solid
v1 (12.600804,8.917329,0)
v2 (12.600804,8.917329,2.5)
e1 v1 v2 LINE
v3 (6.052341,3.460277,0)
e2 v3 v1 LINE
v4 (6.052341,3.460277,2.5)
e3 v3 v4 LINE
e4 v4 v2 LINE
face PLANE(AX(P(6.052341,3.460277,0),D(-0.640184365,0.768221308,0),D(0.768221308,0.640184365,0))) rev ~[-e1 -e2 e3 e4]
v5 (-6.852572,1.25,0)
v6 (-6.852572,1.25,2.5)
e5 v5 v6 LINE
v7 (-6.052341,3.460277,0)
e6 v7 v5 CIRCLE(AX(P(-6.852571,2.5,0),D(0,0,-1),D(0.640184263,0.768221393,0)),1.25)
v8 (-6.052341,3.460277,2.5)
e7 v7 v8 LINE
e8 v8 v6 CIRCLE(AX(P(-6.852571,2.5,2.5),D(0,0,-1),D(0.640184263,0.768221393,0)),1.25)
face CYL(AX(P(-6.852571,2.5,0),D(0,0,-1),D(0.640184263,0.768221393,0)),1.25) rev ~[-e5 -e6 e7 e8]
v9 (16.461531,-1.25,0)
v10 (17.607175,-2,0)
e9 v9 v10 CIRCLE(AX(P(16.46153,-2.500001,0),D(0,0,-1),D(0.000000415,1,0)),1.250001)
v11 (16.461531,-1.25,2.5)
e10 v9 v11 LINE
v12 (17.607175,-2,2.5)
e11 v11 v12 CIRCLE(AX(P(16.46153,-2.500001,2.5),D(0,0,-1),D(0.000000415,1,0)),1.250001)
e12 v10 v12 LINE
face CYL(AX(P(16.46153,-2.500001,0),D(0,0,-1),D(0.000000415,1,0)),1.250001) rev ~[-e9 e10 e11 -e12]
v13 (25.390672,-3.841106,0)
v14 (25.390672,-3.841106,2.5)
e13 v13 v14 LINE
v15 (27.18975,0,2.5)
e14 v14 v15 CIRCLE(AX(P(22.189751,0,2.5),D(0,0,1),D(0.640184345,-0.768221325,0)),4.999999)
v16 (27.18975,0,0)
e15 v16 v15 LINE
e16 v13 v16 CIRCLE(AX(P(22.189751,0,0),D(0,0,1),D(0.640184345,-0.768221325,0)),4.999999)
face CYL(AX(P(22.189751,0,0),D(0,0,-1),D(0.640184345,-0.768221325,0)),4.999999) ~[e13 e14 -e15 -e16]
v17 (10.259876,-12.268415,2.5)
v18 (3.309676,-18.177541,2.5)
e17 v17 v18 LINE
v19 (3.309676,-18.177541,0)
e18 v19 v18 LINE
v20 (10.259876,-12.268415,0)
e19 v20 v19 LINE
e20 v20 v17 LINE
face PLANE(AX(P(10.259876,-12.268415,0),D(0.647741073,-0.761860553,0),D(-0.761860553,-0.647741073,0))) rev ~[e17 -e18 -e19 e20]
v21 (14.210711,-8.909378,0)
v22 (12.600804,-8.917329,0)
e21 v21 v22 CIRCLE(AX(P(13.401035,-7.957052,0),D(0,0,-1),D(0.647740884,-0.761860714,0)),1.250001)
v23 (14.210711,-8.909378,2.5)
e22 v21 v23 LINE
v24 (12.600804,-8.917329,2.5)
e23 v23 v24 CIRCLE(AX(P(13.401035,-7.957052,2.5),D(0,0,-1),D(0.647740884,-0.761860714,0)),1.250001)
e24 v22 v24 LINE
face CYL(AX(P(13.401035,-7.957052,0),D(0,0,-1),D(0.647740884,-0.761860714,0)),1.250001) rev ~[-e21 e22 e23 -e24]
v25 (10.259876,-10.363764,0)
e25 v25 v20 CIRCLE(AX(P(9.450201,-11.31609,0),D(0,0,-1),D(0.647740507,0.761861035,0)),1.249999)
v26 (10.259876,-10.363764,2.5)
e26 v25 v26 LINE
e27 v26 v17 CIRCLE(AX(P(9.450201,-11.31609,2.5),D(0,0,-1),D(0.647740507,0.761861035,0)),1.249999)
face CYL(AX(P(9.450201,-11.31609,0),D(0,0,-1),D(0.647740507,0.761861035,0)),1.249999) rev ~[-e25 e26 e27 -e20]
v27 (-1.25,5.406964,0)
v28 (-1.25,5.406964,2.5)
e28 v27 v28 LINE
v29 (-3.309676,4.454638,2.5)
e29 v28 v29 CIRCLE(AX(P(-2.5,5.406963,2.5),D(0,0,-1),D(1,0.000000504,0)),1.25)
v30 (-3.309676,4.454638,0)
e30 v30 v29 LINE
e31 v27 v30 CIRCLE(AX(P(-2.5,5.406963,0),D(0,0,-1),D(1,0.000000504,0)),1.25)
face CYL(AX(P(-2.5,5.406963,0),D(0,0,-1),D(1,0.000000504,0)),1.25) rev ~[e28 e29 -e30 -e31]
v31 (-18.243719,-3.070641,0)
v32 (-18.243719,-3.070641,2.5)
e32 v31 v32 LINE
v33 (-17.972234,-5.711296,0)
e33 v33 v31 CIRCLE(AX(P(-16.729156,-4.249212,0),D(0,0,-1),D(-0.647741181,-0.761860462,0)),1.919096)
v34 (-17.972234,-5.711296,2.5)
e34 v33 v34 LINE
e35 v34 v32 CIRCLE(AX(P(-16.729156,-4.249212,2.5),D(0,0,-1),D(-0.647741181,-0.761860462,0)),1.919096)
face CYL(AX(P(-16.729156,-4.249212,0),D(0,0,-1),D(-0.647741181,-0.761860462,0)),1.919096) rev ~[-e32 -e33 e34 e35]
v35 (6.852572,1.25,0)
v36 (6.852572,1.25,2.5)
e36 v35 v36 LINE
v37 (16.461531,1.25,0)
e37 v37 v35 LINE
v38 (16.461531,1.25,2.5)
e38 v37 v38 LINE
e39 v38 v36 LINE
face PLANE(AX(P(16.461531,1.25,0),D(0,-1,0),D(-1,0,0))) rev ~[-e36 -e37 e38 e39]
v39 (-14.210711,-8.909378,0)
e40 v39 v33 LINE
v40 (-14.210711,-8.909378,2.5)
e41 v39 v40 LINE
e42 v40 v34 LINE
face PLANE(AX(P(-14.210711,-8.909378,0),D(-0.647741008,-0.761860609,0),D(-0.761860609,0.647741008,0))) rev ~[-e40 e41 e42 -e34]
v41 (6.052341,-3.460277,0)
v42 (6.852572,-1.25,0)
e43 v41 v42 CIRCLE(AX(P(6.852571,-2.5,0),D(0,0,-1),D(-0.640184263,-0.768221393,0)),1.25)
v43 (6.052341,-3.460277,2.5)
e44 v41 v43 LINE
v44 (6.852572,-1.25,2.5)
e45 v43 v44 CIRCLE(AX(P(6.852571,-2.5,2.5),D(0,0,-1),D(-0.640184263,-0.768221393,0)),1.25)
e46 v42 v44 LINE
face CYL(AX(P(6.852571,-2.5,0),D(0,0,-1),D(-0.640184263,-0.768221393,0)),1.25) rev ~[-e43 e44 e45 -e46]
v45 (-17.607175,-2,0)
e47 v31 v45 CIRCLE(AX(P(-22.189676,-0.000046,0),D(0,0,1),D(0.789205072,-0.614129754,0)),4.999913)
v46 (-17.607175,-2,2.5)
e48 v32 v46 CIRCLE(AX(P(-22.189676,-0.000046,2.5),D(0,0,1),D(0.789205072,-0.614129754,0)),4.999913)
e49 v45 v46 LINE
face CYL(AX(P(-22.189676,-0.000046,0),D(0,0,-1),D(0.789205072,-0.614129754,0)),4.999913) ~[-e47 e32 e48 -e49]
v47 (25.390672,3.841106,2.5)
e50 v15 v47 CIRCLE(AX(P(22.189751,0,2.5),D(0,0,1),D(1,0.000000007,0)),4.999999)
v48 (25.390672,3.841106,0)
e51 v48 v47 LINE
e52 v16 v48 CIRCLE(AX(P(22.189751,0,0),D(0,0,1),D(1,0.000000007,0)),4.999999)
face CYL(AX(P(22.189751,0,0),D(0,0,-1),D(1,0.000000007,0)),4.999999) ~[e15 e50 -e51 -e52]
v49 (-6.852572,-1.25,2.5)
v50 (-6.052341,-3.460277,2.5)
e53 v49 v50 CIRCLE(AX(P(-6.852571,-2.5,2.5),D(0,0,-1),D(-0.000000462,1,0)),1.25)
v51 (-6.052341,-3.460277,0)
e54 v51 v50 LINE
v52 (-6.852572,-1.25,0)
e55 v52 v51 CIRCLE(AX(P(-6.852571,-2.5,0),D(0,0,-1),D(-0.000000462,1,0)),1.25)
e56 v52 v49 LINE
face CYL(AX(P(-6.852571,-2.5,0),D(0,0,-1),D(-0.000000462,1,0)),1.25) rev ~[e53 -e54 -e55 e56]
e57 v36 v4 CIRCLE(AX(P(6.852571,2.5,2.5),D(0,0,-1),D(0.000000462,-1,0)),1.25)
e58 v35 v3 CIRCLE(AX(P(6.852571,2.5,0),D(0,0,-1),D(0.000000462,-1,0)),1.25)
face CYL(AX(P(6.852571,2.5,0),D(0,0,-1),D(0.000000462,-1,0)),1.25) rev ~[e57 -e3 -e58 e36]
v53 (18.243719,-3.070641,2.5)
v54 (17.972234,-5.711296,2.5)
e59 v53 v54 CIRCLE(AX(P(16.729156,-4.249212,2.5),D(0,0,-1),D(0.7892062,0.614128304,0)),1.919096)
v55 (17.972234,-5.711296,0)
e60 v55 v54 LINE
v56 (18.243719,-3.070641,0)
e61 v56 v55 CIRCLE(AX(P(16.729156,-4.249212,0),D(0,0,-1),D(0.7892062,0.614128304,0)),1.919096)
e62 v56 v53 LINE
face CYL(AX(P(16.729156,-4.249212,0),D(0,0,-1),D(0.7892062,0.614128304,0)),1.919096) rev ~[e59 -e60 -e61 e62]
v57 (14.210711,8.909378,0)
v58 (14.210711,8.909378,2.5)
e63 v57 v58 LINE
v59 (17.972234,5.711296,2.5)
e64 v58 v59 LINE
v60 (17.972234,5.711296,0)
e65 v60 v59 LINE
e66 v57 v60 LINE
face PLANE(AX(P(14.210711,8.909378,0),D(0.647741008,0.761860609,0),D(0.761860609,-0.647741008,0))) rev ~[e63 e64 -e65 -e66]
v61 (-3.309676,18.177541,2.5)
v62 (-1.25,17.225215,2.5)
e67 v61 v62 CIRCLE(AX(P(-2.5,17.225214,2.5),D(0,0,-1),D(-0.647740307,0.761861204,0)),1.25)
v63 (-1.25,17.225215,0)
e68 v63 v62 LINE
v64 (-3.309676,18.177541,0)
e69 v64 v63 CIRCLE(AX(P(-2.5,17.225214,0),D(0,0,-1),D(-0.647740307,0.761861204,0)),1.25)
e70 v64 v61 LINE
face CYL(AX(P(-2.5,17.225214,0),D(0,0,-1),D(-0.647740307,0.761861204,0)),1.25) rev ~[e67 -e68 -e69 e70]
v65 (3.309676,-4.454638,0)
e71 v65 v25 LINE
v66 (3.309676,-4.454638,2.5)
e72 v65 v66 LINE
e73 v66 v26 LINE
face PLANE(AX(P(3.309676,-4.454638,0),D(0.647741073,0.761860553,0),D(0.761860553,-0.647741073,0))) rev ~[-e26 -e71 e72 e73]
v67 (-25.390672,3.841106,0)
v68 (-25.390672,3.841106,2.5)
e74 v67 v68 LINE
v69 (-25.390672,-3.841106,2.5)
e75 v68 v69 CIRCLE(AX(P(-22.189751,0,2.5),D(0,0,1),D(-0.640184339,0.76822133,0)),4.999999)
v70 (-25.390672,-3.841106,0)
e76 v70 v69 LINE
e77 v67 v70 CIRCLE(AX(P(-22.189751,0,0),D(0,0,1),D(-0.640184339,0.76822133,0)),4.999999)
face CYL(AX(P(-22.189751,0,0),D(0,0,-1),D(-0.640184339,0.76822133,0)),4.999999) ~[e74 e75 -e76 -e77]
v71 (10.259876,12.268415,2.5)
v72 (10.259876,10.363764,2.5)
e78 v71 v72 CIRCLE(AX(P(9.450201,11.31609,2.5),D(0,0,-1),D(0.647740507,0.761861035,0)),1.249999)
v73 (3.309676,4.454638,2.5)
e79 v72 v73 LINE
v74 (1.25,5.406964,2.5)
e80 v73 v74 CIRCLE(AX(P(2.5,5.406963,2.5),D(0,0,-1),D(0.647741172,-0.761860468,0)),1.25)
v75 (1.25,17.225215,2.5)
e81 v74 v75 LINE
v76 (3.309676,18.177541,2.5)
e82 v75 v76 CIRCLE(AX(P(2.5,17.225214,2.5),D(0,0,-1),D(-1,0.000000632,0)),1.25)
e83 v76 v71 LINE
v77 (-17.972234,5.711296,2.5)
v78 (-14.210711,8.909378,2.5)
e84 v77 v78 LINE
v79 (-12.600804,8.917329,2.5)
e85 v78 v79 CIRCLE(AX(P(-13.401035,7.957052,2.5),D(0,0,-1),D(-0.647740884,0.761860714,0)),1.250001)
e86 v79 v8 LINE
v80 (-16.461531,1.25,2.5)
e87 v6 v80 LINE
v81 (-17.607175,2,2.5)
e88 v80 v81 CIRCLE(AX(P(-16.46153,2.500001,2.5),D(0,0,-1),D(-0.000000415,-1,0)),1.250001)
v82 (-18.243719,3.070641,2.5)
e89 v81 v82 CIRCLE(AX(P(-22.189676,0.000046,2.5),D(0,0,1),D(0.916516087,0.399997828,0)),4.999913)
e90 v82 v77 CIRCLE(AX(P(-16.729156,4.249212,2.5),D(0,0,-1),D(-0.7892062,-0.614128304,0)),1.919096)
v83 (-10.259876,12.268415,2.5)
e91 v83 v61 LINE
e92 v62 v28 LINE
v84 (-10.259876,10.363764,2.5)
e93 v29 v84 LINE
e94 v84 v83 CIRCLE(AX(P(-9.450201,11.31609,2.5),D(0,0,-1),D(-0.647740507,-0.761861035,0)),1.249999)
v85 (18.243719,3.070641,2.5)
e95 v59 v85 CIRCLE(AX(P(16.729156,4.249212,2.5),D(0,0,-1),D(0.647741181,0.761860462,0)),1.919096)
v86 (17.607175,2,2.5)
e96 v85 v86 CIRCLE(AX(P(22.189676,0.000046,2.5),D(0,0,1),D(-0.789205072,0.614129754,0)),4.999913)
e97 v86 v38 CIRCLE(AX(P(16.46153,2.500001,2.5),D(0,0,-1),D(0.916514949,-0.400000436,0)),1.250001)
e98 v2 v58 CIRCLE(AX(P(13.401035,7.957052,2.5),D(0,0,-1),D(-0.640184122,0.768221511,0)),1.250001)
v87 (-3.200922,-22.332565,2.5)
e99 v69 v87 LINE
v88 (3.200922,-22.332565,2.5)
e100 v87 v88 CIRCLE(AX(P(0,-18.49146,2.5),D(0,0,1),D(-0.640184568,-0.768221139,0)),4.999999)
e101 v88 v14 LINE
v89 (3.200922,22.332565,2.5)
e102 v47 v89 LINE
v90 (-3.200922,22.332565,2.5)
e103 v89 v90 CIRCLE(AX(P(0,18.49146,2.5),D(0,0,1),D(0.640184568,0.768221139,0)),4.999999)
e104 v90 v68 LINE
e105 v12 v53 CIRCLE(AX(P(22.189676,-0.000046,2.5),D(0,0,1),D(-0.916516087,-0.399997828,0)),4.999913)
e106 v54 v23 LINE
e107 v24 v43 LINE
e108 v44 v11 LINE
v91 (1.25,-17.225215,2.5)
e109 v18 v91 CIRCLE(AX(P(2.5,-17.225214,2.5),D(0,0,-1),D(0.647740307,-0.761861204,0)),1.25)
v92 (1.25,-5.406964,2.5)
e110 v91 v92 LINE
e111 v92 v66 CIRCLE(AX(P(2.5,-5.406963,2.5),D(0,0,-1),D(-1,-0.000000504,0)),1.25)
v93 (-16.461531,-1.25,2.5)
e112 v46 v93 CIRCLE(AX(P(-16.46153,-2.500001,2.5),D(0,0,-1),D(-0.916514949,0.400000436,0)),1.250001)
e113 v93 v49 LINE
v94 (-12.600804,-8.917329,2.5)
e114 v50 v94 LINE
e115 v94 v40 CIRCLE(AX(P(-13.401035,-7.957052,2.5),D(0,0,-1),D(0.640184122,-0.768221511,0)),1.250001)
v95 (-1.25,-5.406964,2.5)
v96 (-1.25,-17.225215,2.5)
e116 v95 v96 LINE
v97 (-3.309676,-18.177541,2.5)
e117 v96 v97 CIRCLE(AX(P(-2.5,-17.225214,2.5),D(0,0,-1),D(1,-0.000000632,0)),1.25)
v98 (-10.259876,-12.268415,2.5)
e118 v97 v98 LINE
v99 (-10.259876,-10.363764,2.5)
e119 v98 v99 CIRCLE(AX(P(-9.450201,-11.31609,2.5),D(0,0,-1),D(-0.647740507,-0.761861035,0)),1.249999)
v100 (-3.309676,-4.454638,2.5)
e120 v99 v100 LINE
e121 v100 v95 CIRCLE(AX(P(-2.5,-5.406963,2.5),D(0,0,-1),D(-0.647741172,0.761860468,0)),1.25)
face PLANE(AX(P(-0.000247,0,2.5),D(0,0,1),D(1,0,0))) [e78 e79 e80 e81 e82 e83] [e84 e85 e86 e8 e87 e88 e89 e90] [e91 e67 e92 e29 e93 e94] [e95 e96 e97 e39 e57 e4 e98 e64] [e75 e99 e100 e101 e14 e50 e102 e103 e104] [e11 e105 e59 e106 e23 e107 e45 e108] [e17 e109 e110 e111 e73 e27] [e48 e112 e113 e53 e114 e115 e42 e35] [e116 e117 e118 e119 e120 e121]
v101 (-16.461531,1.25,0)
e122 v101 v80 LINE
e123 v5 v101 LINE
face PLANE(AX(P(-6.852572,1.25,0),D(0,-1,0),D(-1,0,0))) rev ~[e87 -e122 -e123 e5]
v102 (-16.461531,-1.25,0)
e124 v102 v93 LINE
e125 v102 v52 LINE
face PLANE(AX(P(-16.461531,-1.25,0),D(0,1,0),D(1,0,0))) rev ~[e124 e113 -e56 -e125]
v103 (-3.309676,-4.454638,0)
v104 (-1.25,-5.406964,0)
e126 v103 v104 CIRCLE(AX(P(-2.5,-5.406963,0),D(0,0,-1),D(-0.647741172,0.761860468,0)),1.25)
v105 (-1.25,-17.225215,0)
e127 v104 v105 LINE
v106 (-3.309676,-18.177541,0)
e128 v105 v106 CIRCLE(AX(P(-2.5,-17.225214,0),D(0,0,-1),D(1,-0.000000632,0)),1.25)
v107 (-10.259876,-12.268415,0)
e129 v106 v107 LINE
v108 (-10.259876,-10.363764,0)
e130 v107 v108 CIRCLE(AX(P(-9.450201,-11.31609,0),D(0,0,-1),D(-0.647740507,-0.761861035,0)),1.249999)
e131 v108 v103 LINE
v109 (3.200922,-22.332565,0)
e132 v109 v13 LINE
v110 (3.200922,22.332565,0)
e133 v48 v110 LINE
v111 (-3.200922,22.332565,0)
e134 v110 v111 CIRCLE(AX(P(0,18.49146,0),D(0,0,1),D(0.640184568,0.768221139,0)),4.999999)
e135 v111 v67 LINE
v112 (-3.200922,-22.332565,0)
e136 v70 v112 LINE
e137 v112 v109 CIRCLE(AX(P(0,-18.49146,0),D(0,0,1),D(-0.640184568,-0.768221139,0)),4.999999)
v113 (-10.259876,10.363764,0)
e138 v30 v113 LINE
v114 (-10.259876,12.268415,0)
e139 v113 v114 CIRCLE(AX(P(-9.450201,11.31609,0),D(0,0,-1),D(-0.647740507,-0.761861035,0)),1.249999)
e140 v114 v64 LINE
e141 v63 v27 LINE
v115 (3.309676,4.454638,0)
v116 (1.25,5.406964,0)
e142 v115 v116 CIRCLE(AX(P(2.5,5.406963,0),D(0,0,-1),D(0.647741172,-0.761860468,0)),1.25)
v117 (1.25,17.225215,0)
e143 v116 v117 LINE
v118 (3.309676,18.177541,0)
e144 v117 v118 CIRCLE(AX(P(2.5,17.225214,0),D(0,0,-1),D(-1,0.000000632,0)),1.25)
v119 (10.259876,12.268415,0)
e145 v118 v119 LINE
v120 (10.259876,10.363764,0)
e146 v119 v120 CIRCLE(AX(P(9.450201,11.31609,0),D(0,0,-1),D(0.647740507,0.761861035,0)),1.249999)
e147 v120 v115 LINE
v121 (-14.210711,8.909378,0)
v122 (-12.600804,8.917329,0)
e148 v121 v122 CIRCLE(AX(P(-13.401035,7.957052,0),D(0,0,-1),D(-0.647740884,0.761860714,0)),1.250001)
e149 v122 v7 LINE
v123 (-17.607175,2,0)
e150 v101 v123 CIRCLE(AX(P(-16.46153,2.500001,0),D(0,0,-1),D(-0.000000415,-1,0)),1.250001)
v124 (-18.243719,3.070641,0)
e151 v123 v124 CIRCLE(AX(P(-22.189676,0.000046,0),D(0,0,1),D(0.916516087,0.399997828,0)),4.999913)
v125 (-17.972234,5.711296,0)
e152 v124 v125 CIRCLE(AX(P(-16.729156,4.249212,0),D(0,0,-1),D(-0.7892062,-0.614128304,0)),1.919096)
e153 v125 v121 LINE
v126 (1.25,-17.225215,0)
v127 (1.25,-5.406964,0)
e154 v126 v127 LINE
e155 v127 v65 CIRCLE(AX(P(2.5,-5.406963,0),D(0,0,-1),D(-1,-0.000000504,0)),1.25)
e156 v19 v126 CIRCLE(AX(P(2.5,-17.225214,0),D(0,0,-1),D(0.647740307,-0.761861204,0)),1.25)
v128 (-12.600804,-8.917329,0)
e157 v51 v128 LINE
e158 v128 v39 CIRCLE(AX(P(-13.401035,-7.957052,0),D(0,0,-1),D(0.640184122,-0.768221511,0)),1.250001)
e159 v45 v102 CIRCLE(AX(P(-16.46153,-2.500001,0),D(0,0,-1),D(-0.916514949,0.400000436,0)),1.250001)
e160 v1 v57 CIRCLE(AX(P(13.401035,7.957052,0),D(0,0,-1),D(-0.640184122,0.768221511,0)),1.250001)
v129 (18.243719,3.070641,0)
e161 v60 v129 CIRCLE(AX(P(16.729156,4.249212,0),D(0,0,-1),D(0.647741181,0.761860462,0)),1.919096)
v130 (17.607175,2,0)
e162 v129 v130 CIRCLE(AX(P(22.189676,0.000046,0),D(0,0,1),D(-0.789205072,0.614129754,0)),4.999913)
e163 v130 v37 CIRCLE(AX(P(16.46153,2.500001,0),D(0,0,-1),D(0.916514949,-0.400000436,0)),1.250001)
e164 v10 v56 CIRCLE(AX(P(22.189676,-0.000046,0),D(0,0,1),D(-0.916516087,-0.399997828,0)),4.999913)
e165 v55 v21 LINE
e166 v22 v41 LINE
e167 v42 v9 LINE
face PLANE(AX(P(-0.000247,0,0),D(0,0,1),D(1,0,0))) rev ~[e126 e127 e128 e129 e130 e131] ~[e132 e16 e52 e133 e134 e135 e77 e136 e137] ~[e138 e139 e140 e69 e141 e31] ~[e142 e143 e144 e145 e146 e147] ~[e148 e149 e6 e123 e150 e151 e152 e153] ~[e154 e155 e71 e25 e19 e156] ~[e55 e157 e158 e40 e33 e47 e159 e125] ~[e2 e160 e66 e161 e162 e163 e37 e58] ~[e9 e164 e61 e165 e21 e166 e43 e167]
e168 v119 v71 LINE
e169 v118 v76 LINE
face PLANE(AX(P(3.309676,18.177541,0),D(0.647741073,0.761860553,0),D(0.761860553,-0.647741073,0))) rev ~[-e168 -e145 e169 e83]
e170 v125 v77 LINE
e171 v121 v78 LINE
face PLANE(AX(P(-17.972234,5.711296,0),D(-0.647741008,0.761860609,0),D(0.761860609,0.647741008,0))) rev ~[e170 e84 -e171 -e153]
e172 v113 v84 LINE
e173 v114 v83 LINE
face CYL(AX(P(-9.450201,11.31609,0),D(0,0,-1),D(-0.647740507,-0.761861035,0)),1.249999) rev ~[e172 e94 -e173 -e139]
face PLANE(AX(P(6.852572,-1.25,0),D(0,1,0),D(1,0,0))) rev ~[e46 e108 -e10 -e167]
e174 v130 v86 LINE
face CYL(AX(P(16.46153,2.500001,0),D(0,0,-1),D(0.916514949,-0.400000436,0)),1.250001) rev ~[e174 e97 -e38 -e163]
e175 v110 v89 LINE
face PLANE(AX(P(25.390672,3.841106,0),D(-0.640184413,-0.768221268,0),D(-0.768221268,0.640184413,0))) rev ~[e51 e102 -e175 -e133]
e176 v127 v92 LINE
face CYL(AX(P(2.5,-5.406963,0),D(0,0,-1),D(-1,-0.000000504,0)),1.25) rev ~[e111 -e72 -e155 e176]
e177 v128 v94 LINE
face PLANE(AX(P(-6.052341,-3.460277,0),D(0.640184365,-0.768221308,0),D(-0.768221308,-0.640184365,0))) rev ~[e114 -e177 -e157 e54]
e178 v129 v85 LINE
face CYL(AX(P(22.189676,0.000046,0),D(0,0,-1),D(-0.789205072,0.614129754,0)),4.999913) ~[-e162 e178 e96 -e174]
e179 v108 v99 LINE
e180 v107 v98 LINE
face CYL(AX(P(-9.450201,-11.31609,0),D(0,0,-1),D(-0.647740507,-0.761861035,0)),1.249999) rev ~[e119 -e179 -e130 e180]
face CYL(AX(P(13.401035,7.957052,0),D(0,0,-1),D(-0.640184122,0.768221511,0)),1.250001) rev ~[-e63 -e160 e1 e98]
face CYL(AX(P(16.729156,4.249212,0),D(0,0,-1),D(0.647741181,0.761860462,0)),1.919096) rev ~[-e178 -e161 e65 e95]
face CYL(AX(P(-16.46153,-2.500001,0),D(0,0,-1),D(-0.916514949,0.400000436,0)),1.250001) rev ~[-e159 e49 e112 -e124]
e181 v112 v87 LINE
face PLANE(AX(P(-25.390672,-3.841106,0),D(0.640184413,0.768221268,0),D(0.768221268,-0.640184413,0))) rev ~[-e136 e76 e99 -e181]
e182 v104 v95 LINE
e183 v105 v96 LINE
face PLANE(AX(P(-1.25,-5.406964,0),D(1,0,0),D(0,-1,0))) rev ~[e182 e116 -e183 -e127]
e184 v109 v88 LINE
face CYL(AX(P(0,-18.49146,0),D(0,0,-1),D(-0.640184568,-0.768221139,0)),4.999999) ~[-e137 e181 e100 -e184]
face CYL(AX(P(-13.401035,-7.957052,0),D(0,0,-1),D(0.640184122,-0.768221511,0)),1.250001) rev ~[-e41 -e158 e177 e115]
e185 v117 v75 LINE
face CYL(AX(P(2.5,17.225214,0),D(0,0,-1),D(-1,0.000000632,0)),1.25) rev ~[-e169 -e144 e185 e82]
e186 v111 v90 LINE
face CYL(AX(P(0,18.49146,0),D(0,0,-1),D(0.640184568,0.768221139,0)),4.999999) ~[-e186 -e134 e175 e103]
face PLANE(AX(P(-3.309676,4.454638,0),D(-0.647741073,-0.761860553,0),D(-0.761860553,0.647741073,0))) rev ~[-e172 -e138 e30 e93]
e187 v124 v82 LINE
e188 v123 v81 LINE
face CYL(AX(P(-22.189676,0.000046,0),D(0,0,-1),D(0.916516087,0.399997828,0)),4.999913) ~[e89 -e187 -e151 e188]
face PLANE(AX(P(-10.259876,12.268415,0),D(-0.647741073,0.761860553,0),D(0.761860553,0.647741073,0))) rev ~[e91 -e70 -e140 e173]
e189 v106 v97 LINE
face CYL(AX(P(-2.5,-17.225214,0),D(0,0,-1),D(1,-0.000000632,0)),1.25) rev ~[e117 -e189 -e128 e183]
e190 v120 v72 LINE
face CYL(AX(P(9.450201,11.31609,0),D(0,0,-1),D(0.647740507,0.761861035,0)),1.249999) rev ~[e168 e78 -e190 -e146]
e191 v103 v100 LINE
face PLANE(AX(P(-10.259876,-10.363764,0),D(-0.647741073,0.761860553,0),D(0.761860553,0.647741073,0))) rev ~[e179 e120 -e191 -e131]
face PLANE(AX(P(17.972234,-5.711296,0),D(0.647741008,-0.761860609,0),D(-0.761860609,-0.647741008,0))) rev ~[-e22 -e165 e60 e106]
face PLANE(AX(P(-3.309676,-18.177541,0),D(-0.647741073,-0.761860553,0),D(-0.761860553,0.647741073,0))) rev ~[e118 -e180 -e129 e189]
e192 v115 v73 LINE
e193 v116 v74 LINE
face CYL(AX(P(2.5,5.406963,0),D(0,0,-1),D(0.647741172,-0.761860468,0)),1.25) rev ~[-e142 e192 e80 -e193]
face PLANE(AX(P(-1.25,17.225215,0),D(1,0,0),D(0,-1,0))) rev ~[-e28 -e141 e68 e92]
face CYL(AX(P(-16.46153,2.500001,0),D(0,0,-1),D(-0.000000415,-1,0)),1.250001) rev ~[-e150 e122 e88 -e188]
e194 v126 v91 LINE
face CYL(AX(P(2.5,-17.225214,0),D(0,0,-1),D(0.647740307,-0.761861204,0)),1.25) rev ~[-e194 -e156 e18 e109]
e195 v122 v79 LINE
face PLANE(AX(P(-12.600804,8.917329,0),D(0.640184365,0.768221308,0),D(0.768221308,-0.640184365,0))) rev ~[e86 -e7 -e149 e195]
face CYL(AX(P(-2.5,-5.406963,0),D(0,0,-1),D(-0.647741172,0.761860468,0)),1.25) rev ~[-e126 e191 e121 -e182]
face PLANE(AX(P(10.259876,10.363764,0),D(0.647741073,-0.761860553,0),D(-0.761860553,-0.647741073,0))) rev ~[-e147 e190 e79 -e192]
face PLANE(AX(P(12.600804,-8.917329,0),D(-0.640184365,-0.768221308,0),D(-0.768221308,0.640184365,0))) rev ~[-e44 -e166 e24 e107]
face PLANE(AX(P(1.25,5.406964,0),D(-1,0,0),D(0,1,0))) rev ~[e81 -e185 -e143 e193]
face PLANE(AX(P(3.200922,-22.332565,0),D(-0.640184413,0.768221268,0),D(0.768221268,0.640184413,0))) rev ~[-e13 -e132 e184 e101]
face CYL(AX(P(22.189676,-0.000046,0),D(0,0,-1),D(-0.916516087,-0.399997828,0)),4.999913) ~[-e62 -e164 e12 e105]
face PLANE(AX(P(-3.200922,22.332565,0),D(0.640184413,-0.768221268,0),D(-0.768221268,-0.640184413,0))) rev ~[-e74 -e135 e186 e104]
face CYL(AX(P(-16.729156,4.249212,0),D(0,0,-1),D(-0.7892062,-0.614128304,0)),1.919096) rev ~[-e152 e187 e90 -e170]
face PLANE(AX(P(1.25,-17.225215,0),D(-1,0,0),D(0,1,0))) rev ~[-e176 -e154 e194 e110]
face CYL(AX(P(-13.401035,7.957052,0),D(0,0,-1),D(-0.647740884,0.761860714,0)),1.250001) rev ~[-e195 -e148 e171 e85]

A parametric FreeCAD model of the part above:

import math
import FreeCAD as App
import Part
import Sketcher
from FreeCAD import Vector

doc = App.newDocument("Part")
body = doc.addObject("PartDesign::Body", "Body")

# Sketch on XY plane
sketch1 = doc.addObject("Sketcher::SketchObject", "Sketch")
body.addObject(sketch1)
sketch1.AttachmentSupport = (doc.XY_Plane, [""])
sketch1.MapMode = "FlatFace"
sketch1.addGeometry(Part.LineSegment(Vector(-3.200922, 22.332565, 0), Vector(-25.390672, 3.841106, 0)), False)
sketch1.addGeometry(Part.ArcOfCircle(Part.Circle(Vector(-22.189751, 0, 0), Vector(0, 0, 1), 4.999999), math.radians(129.805567), math.radians(230.194433)), False)
sketch1.addGeometry(Part.LineSegment(Vector(-25.390672, -3.841106, 0), Vector(-3.200922, -22.332565, 0)), False)
sketch1.addGeometry(Part.ArcOfCircle(Part.Circle(Vector(0, -18.49146, 0), Vector(0, 0, 1), 4.999999), math.radians(-129.805584), math.radians(-50.194416)), False)
sketch1.addGeometry(Part.LineSegment(Vector(3.200922, -22.332565, 0), Vector(25.390672, -3.841106, 0)), False)
sketch1.addGeometry(Part.ArcOfCircle(Part.Circle(Vector(22.189751, 0, 0), Vector(0, 0, 1), 4.999999), math.radians(-50.194433), math.radians(0)), False)
sketch1.addGeometry(Part.ArcOfCircle(Part.Circle(Vector(22.189751, 0, 0), Vector(0, 0, 1), 4.999999), math.radians(0), math.radians(50.194433)), False)
sketch1.addGeometry(Part.LineSegment(Vector(25.390672, 3.841106, 0), Vector(3.200922, 22.332565, 0)), False)
sketch1.addGeometry(Part.ArcOfCircle(Part.Circle(Vector(0, 18.49146, 0), Vector(0, 0, 1), 4.999999), math.radians(50.194416), math.radians(129.805584)), False)
sketch1.addGeometry(Part.ArcOfCircle(Part.Circle(Vector(-9.450201, -11.31609, 0), Vector(0, 0, 1), 1.249999), math.radians(130.371462), math.radians(229.628538)), False)
sketch1.addGeometry(Part.LineSegment(Vector(-10.259876, -10.363764, 0), Vector(-3.309676, -4.454638, 0)), False)
sketch1.addGeometry(Part.ArcOfCircle(Part.Circle(Vector(-2.5, -5.406963, 0), Vector(0, 0, 1), 1.25), math.radians(-0.000029), math.radians(130.371512)), False)
sketch1.addGeometry(Part.LineSegment(Vector(-1.25, -5.406964, 0), Vector(-1.25, -17.225215, 0)), False)
sketch1.addGeometry(Part.ArcOfCircle(Part.Circle(Vector(-2.5, -17.225214, 0), Vector(0, 0, 1), 1.25), math.radians(-130.371447), math.radians(-0.000036)), False)
sketch1.addGeometry(Part.LineSegment(Vector(-3.309676, -18.177541, 0), Vector(-10.259876, -12.268415, 0)), False)
sketch1.addGeometry(Part.ArcOfCircle(Part.Circle(Vector(-16.46153, -2.500001, 0), Vector(0, 0, 1), 1.250001), math.radians(90.000024), math.radians(156.421794)), False)
sketch1.addGeometry(Part.LineSegment(Vector(-16.461531, -1.25, 0), Vector(-6.852572, -1.25, 0)), False)
sketch1.addGeometry(Part.ArcOfCircle(Part.Circle(Vector(-6.852571, -2.5, 0), Vector(0, 0, 1), 1.25), math.radians(-50.194439), math.radians(90.000026)), False)
sketch1.addGeometry(Part.LineSegment(Vector(-6.052341, -3.460277, 0), Vector(-12.600804, -8.917329, 0)), False)
sketch1.addGeometry(Part.ArcOfCircle(Part.Circle(Vector(-13.401035, -7.957052, 0), Vector(0, 0, 1), 1.250001), math.radians(-130.37149), math.radians(-50.19445)), False)
sketch1.addGeometry(Part.LineSegment(Vector(-14.210711, -8.909378, 0), Vector(-17.972234, -5.711296, 0)), False)
sketch1.addGeometry(Part.ArcOfCircle(Part.Circle(Vector(-16.729156, -4.249212, 0), Vector(0, 0, 1), 1.919096), math.radians(142.111391), math.radians(229.628488)), False)
sketch1.addGeometry(Part.ArcOfCircle(Part.Circle(Vector(-22.189676, -0.000046, 0), Vector(0, 0, 1), 4.999913), math.radians(-37.888714), math.radians(-23.578043)), False)
sketch1.addGeometry(Part.LineSegment(Vector(1.25, -17.225215, 0), Vector(1.25, -5.406964, 0)), False)
sketch1.addGeometry(Part.ArcOfCircle(Part.Circle(Vector(2.5, -5.406963, 0), Vector(0, 0, 1), 1.25), math.radians(49.628488), math.radians(180.000029)), False)
sketch1.addGeometry(Part.LineSegment(Vector(3.309676, -4.454638, 0), Vector(10.259876, -10.363764, 0)), False)
sketch1.addGeometry(Part.ArcOfCircle(Part.Circle(Vector(9.450201, -11.31609, 0), Vector(0, 0, 1), 1.249999), math.radians(-49.628538), math.radians(49.628538)), False)
sketch1.addGeometry(Part.LineSegment(Vector(10.259876, -12.268415, 0), Vector(3.309676, -18.177541, 0)), False)
sketch1.addGeometry(Part.ArcOfCircle(Part.Circle(Vector(2.5, -17.225214, 0), Vector(0, 0, 1), 1.25), math.radians(-179.999964), math.radians(-49.628553)), False)
sketch1.addGeometry(Part.ArcOfCircle(Part.Circle(Vector(16.729156, -4.249212, 0), Vector(0, 0, 1), 1.919096), math.radians(-49.628488), math.radians(37.888609)), False)
sketch1.addGeometry(Part.LineSegment(Vector(17.972234, -5.711296, 0), Vector(14.210711, -8.909378, 0)), False)
sketch1.addGeometry(Part.ArcOfCircle(Part.Circle(Vector(13.401035, -7.957052, 0), Vector(0, 0, 1), 1.250001), math.radians(-129.80555), math.radians(-49.62851)), False)
sketch1.addGeometry(Part.LineSegment(Vector(12.600804, -8.917329, 0), Vector(6.052341, -3.460277, 0)), False)
sketch1.addGeometry(Part.ArcOfCircle(Part.Circle(Vector(6.852571, -2.5, 0), Vector(0, 0, 1), 1.25), math.radians(89.999974), math.radians(230.194439)), False)
sketch1.addGeometry(Part.LineSegment(Vector(6.852572, -1.25, 0), Vector(16.461531, -1.25, 0)), False)
sketch1.addGeometry(Part.ArcOfCircle(Part.Circle(Vector(16.46153, -2.500001, 0), Vector(0, 0, 1), 1.250001), math.radians(23.578206), math.radians(89.999976)), False)
sketch1.addGeometry(Part.ArcOfCircle(Part.Circle(Vector(22.189676, -0.000046, 0), Vector(0, 0, 1), 4.999913), math.radians(-156.421957), math.radians(-142.111286)), False)
sketch1.addGeometry(Part.ArcOfCircle(Part.Circle(Vector(-16.729156, 4.249212, 0), Vector(0, 0, 1), 1.919096), math.radians(130.371512), math.radians(217.888609)), False)
sketch1.addGeometry(Part.LineSegment(Vector(-17.972234, 5.711296, 0), Vector(-14.210711, 8.909378, 0)), False)
sketch1.addGeometry(Part.ArcOfCircle(Part.Circle(Vector(-13.401035, 7.957052, 0), Vector(0, 0, 1), 1.250001), math.radians(50.19445), math.radians(130.37149)), False)
sketch1.addGeometry(Part.LineSegment(Vector(-12.600804, 8.917329, 0), Vector(-6.052341, 3.460277, 0)), False)
sketch1.addGeometry(Part.ArcOfCircle(Part.Circle(Vector(-6.852571, 2.5, 0), Vector(0, 0, 1), 1.25), math.radians(-90.000026), math.radians(50.194439)), False)
sketch1.addGeometry(Part.LineSegment(Vector(-6.852572, 1.25, 0), Vector(-16.461531, 1.25, 0)), False)
sketch1.addGeometry(Part.ArcOfCircle(Part.Circle(Vector(-16.46153, 2.500001, 0), Vector(0, 0, 1), 1.250001), math.radians(-156.421794), math.radians(-90.000024)), False)
sketch1.addGeometry(Part.ArcOfCircle(Part.Circle(Vector(-22.189676, 0.000046, 0), Vector(0, 0, 1), 4.999913), math.radians(23.578043), math.radians(37.888714)), False)
sketch1.addGeometry(Part.ArcOfCircle(Part.Circle(Vector(-2.5, 17.225214, 0), Vector(0, 0, 1), 1.25), math.radians(0.000036), math.radians(130.371447)), False)
sketch1.addGeometry(Part.LineSegment(Vector(-1.25, 17.225215, 0), Vector(-1.25, 5.406964, 0)), False)
sketch1.addGeometry(Part.ArcOfCircle(Part.Circle(Vector(-2.5, 5.406963, 0), Vector(0, 0, 1), 1.25), math.radians(-130.371512), math.radians(0.000029)), False)
sketch1.addGeometry(Part.LineSegment(Vector(-3.309676, 4.454638, 0), Vector(-10.259876, 10.363764, 0)), False)
sketch1.addGeometry(Part.ArcOfCircle(Part.Circle(Vector(-9.450201, 11.31609, 0), Vector(0, 0, 1), 1.249999), math.radians(130.371462), math.radians(229.628538)), False)
sketch1.addGeometry(Part.LineSegment(Vector(-10.259876, 12.268415, 0), Vector(-3.309676, 18.177541, 0)), False)
sketch1.addGeometry(Part.ArcOfCircle(Part.Circle(Vector(16.46153, 2.500001, 0), Vector(0, 0, 1), 1.250001), math.radians(-89.999976), math.radians(-23.578206)), False)
sketch1.addGeometry(Part.LineSegment(Vector(16.461531, 1.25, 0), Vector(6.852572, 1.25, 0)), False)
sketch1.addGeometry(Part.ArcOfCircle(Part.Circle(Vector(6.852571, 2.5, 0), Vector(0, 0, 1), 1.25), math.radians(129.805561), math.radians(270.000026)), False)
sketch1.addGeometry(Part.LineSegment(Vector(6.052341, 3.460277, 0), Vector(12.600804, 8.917329, 0)), False)
sketch1.addGeometry(Part.ArcOfCircle(Part.Circle(Vector(13.401035, 7.957052, 0), Vector(0, 0, 1), 1.250001), math.radians(49.62851), math.radians(129.80555)), False)
sketch1.addGeometry(Part.LineSegment(Vector(14.210711, 8.909378, 0), Vector(17.972234, 5.711296, 0)), False)
sketch1.addGeometry(Part.ArcOfCircle(Part.Circle(Vector(16.729156, 4.249212, 0), Vector(0, 0, 1), 1.919096), math.radians(-37.888609), math.radians(49.628488)), False)
sketch1.addGeometry(Part.ArcOfCircle(Part.Circle(Vector(22.189676, 0.000046, 0), Vector(0, 0, 1), 4.999913), math.radians(142.111286), math.radians(156.421957)), False)
sketch1.addGeometry(Part.LineSegment(Vector(10.259876, 10.363764, 0), Vector(3.309676, 4.454638, 0)), False)
sketch1.addGeometry(Part.ArcOfCircle(Part.Circle(Vector(2.5, 5.406963, 0), Vector(0, 0, 1), 1.25), math.radians(179.999971), math.radians(310.371512)), False)
sketch1.addGeometry(Part.LineSegment(Vector(1.25, 5.406964, 0), Vector(1.25, 17.225215, 0)), False)
sketch1.addGeometry(Part.ArcOfCircle(Part.Circle(Vector(2.5, 17.225214, 0), Vector(0, 0, 1), 1.25), math.radians(49.628553), math.radians(179.999964)), False)
sketch1.addGeometry(Part.LineSegment(Vector(3.309676, 18.177541, 0), Vector(10.259876, 12.268415, 0)), False)
sketch1.addGeometry(Part.ArcOfCircle(Part.Circle(Vector(9.450201, 11.31609, 0), Vector(0, 0, 1), 1.249999), math.radians(-49.628538), math.radians(49.628538)), False)
sketch1.addConstraint(Sketcher.Constraint("Coincident", 0, 2, 1, 1))
sketch1.addConstraint(Sketcher.Constraint("Coincident", 1, 2, 2, 1))
sketch1.addConstraint(Sketcher.Constraint("Coincident", 2, 2, 3, 1))
sketch1.addConstraint(Sketcher.Constraint("Coincident", 3, 2, 4, 1))
sketch1.addConstraint(Sketcher.Constraint("Coincident", 4, 2, 5, 1))
sketch1.addConstraint(Sketcher.Constraint("Coincident", 5, 2, 6, 1))
sketch1.addConstraint(Sketcher.Constraint("Coincident", 6, 2, 7, 1))
sketch1.addConstraint(Sketcher.Constraint("Coincident", 7, 2, 8, 1))
sketch1.addConstraint(Sketcher.Constraint("Coincident", 8, 2, 0, 1))
sketch1.addConstraint(Sketcher.Constraint("Coincident", 9, 1, 10, 1))
sketch1.addConstraint(Sketcher.Constraint("Coincident", 10, 2, 11, 2))
sketch1.addConstraint(Sketcher.Constraint("Coincident", 11, 1, 12, 1))
sketch1.addConstraint(Sketcher.Constraint("Coincident", 12, 2, 13, 2))
sketch1.addConstraint(Sketcher.Constraint("Coincident", 13, 1, 14, 1))
sketch1.addConstraint(Sketcher.Constraint("Coincident", 14, 2, 9, 2))
sketch1.addConstraint(Sketcher.Constraint("Coincident", 15, 1, 16, 1))
sketch1.addConstraint(Sketcher.Constraint("Coincident", 16, 2, 17, 2))
sketch1.addConstraint(Sketcher.Constraint("Coincident", 17, 1, 18, 1))
sketch1.addConstraint(Sketcher.Constraint("Coincident", 18, 2, 19, 2))
sketch1.addConstraint(Sketcher.Constraint("Coincident", 19, 1, 20, 1))
sketch1.addConstraint(Sketcher.Constraint("Coincident", 20, 2, 21, 2))
sketch1.addConstraint(Sketcher.Constraint("Coincident", 21, 1, 22, 1))
sketch1.addConstraint(Sketcher.Constraint("Coincident", 22, 2, 15, 2))
sketch1.addConstraint(Sketcher.Constraint("Coincident", 23, 2, 24, 2))
sketch1.addConstraint(Sketcher.Constraint("Coincident", 24, 1, 25, 1))
sketch1.addConstraint(Sketcher.Constraint("Coincident", 25, 2, 26, 2))
sketch1.addConstraint(Sketcher.Constraint("Coincident", 26, 1, 27, 1))
sketch1.addConstraint(Sketcher.Constraint("Coincident", 27, 2, 28, 2))
sketch1.addConstraint(Sketcher.Constraint("Coincident", 28, 1, 23, 1))
sketch1.addConstraint(Sketcher.Constraint("Coincident", 29, 1, 30, 1))
sketch1.addConstraint(Sketcher.Constraint("Coincident", 30, 2, 31, 2))
sketch1.addConstraint(Sketcher.Constraint("Coincident", 31, 1, 32, 1))
sketch1.addConstraint(Sketcher.Constraint("Coincident", 32, 2, 33, 2))
sketch1.addConstraint(Sketcher.Constraint("Coincident", 33, 1, 34, 1))
sketch1.addConstraint(Sketcher.Constraint("Coincident", 34, 2, 35, 2))
sketch1.addConstraint(Sketcher.Constraint("Coincident", 35, 1, 36, 1))
sketch1.addConstraint(Sketcher.Constraint("Coincident", 36, 2, 29, 2))
sketch1.addConstraint(Sketcher.Constraint("Coincident", 37, 1, 38, 1))
sketch1.addConstraint(Sketcher.Constraint("Coincident", 38, 2, 39, 2))
sketch1.addConstraint(Sketcher.Constraint("Coincident", 39, 1, 40, 1))
sketch1.addConstraint(Sketcher.Constraint("Coincident", 40, 2, 41, 2))
sketch1.addConstraint(Sketcher.Constraint("Coincident", 41, 1, 42, 1))
sketch1.addConstraint(Sketcher.Constraint("Coincident", 42, 2, 43, 2))
sketch1.addConstraint(Sketcher.Constraint("Coincident", 43, 1, 44, 1))
sketch1.addConstraint(Sketcher.Constraint("Coincident", 44, 2, 37, 2))
sketch1.addConstraint(Sketcher.Constraint("Coincident", 45, 1, 46, 1))
sketch1.addConstraint(Sketcher.Constraint("Coincident", 46, 2, 47, 2))
sketch1.addConstraint(Sketcher.Constraint("Coincident", 47, 1, 48, 1))
sketch1.addConstraint(Sketcher.Constraint("Coincident", 48, 2, 49, 2))
sketch1.addConstraint(Sketcher.Constraint("Coincident", 49, 1, 50, 1))
sketch1.addConstraint(Sketcher.Constraint("Coincident", 50, 2, 45, 2))
sketch1.addConstraint(Sketcher.Constraint("Coincident", 51, 1, 52, 1))
sketch1.addConstraint(Sketcher.Constraint("Coincident", 52, 2, 53, 2))
sketch1.addConstraint(Sketcher.Constraint("Coincident", 53, 1, 54, 1))
sketch1.addConstraint(Sketcher.Constraint("Coincident", 54, 2, 55, 2))
sketch1.addConstraint(Sketcher.Constraint("Coincident", 55, 1, 56, 1))
sketch1.addConstraint(Sketcher.Constraint("Coincident", 56, 2, 57, 2))
sketch1.addConstraint(Sketcher.Constraint("Coincident", 57, 1, 58, 1))
sketch1.addConstraint(Sketcher.Constraint("Coincident", 58, 2, 51, 2))
sketch1.addConstraint(Sketcher.Constraint("Coincident", 59, 2, 60, 2))
sketch1.addConstraint(Sketcher.Constraint("Coincident", 60, 1, 61, 1))
sketch1.addConstraint(Sketcher.Constraint("Coincident", 61, 2, 62, 2))
sketch1.addConstraint(Sketcher.Constraint("Coincident", 62, 1, 63, 1))
sketch1.addConstraint(Sketcher.Constraint("Coincident", 63, 2, 64, 2))
sketch1.addConstraint(Sketcher.Constraint("Coincident", 64, 1, 59, 1))
sketch1.addConstraint(Sketcher.Constraint("Vertical", 12))
sketch1.addConstraint(Sketcher.Constraint("Horizontal", 16))
sketch1.addConstraint(Sketcher.Constraint("Vertical", 23))
sketch1.addConstraint(Sketcher.Constraint("Horizontal", 34))
sketch1.addConstraint(Sketcher.Constraint("Horizontal", 42))
sketch1.addConstraint(Sketcher.Constraint("Vertical", 46))
sketch1.addConstraint(Sketcher.Constraint("Horizontal", 52))
sketch1.addConstraint(Sketcher.Constraint("Vertical", 61))
sketch1.addConstraint(Sketcher.Constraint("Coincident", 6, 3, 5, 3))
sketch1.addConstraint(Sketcher.Constraint("PointOnObject", 1, 3, -1))
sketch1.addConstraint(Sketcher.Constraint("PointOnObject", 3, 3, -2))
sketch1.addConstraint(Sketcher.Constraint("PointOnObject", 5, 3, -1))
sketch1.addConstraint(Sketcher.Constraint("PointOnObject", 8, 3, -2))
sketch1.addConstraint(Sketcher.Constraint("PointOnObject", 5, 2, -1))
sketch1.addConstraint(Sketcher.Constraint("Radius", 1, 4.999999))
sketch1.addConstraint(Sketcher.Constraint("Radius", 3, 4.999999))
sketch1.addConstraint(Sketcher.Constraint("Radius", 5, 4.999999))
sketch1.addConstraint(Sketcher.Constraint("Radius", 8, 4.999999))
sketch1.addConstraint(Sketcher.Constraint("Radius", 9, 1.249999))
sketch1.addConstraint(Sketcher.Constraint("Radius", 11, 1.25))
sketch1.addConstraint(Sketcher.Constraint("Radius", 13, 1.25))
sketch1.addConstraint(Sketcher.Constraint("Radius", 15, 1.250001))
sketch1.addConstraint(Sketcher.Constraint("Radius", 17, 1.25))
sketch1.addConstraint(Sketcher.Constraint("Radius", 19, 1.250001))
sketch1.addConstraint(Sketcher.Constraint("Radius", 24, 1.25))
sketch1.addConstraint(Sketcher.Constraint("Radius", 26, 1.249999))
sketch1.addConstraint(Sketcher.Constraint("Radius", 28, 1.25))
sketch1.addConstraint(Sketcher.Constraint("Radius", 31, 1.250001))
sketch1.addConstraint(Sketcher.Constraint("Radius", 33, 1.25))
sketch1.addConstraint(Sketcher.Constraint("Radius", 35, 1.250001))
sketch1.addConstraint(Sketcher.Constraint("Radius", 39, 1.250001))
sketch1.addConstraint(Sketcher.Constraint("Radius", 41, 1.25))
sketch1.addConstraint(Sketcher.Constraint("Radius", 43, 1.250001))
sketch1.addConstraint(Sketcher.Constraint("Radius", 45, 1.25))
sketch1.addConstraint(Sketcher.Constraint("Radius", 47, 1.25))
sketch1.addConstraint(Sketcher.Constraint("Radius", 49, 1.249999))
sketch1.addConstraint(Sketcher.Constraint("Radius", 51, 1.250001))
sketch1.addConstraint(Sketcher.Constraint("Radius", 53, 1.25))
sketch1.addConstraint(Sketcher.Constraint("Radius", 55, 1.250001))
sketch1.addConstraint(Sketcher.Constraint("Radius", 60, 1.25))
sketch1.addConstraint(Sketcher.Constraint("Radius", 62, 1.25))
sketch1.addConstraint(Sketcher.Constraint("Radius", 64, 1.249999))
sketch1.addConstraint(Sketcher.Constraint("DistanceY", 22, 2, -1, 1, 2.0))
sketch1.addConstraint(Sketcher.Constraint("DistanceY", 35, 1, -1, 1, 2.0))
sketch1.addConstraint(Sketcher.Constraint("DistanceY", -1, 1, 43, 1, 2.0))
sketch1.addConstraint(Sketcher.Constraint("DistanceY", -1, 1, 58, 2, 2.0))
sketch1.addConstraint(Sketcher.Constraint("DistanceX", 11, 3, -1, 1, 2.5))
sketch1.addConstraint(Sketcher.Constraint("DistanceY", 15, 3, -1, 1, 2.500001))
sketch1.addConstraint(Sketcher.Constraint("DistanceX", -1, 1, 24, 3, 2.5))
sketch1.addConstraint(Sketcher.Constraint("DistanceY", 33, 3, -1, 1, 2.5))
sketch1.addConstraint(Sketcher.Constraint("DistanceY", -1, 1, 41, 3, 2.5))
sketch1.addConstraint(Sketcher.Constraint("DistanceX", 45, 3, -1, 1, 2.5))
sketch1.addConstraint(Sketcher.Constraint("DistanceY", -1, 1, 51, 3, 2.500001))
sketch1.addConstraint(Sketcher.Constraint("DistanceX", -1, 1, 60, 3, 2.5))
sketch1.addConstraint(Sketcher.Constraint("Radius", 21, 1.919096))
sketch1.addConstraint(Sketcher.Constraint("Radius", 22, 4.999913))
sketch1.addConstraint(Sketcher.Constraint("Radius", 29, 1.919096))
sketch1.addConstraint(Sketcher.Constraint("Radius", 36, 4.999913))
sketch1.addConstraint(Sketcher.Constraint("Radius", 37, 1.919096))
sketch1.addConstraint(Sketcher.Constraint("Radius", 44, 4.999913))
sketch1.addConstraint(Sketcher.Constraint("Radius", 57, 1.919096))
sketch1.addConstraint(Sketcher.Constraint("Radius", 58, 4.999913))
sketch1.addConstraint(Sketcher.Constraint("DistanceX", 16, 1, 16, 2, 9.608959))
sketch1.addConstraint(Sketcher.Constraint("DistanceX", 34, 1, 34, 2, 9.608959))
sketch1.addConstraint(Sketcher.Constraint("DistanceX", 42, 2, 42, 1, 9.608959))
sketch1.addConstraint(Sketcher.Constraint("DistanceX", 52, 2, 52, 1, 9.608959))
sketch1.addConstraint(Sketcher.Constraint("DistanceY", 12, 2, 12, 1, 11.818251))
sketch1.addConstraint(Sketcher.Constraint("DistanceY", 23, 1, 23, 2, 11.818251))
sketch1.addConstraint(Sketcher.Constraint("DistanceY", 46, 2, 46, 1, 11.818251))
sketch1.addConstraint(Sketcher.Constraint("DistanceY", 61, 1, 61, 2, 11.818251))
sketch1.addConstraint(Sketcher.Constraint("DistanceX", 9, 3, -1, 1, 9.450201))
sketch1.addConstraint(Sketcher.Constraint("DistanceX", -1, 1, 26, 3, 9.450201))
sketch1.addConstraint(Sketcher.Constraint("DistanceX", 49, 3, -1, 1, 9.450201))
sketch1.addConstraint(Sketcher.Constraint("DistanceX", -1, 1, 64, 3, 9.450201))
sketch1.addConstraint(Sketcher.Constraint("Distance", 0, 28.884582))
sketch1.addConstraint(Sketcher.Constraint("Distance", 2, 28.884582))
sketch1.addConstraint(Sketcher.Constraint("Distance", 4, 28.884582))
sketch1.addConstraint(Sketcher.Constraint("Distance", 7, 28.884582))
sketch1.addConstraint(Sketcher.Constraint("Distance", 18, 8.524188))
sketch1.addConstraint(Sketcher.Constraint("Distance", 32, 8.524188))
sketch1.addConstraint(Sketcher.Constraint("Distance", 40, 8.524188))
sketch1.addConstraint(Sketcher.Constraint("Distance", 54, 8.524188))
sketch1.addConstraint(Sketcher.Constraint("DistanceX", 1, 3, -1, 1, 22.189751))
sketch1.addConstraint(Sketcher.Constraint("DistanceY", 3, 3, -1, 1, 18.49146))
sketch1.addConstraint(Sketcher.Constraint("DistanceX", -1, 1, 5, 3, 22.189751))
sketch1.addConstraint(Sketcher.Constraint("DistanceY", -1, 1, 8, 3, 18.49146))
sketch1.addConstraint(Sketcher.Constraint("DistanceY", 9, 3, -1, 1, 11.31609))
sketch1.addConstraint(Sketcher.Constraint("DistanceX", 15, 3, -1, 1, 16.46153))
sketch1.addConstraint(Sketcher.Constraint("DistanceX", 17, 3, -1, 1, 6.852571))
sketch1.addConstraint(Sketcher.Constraint("DistanceY", 19, 3, -1, 1, 7.957052))
sketch1.addConstraint(Sketcher.Constraint("DistanceY", 26, 3, -1, 1, 11.31609))
sketch1.addConstraint(Sketcher.Constraint("DistanceY", 31, 3, -1, 1, 7.957052))
sketch1.addConstraint(Sketcher.Constraint("DistanceX", -1, 1, 33, 3, 6.852571))
sketch1.addConstraint(Sketcher.Constraint("DistanceX", -1, 1, 35, 3, 16.46153))
sketch1.addConstraint(Sketcher.Constraint("DistanceY", -1, 1, 39, 3, 7.957052))
sketch1.addConstraint(Sketcher.Constraint("DistanceX", 41, 3, -1, 1, 6.852571))
sketch1.addConstraint(Sketcher.Constraint("DistanceX", 43, 3, -1, 1, 16.46153))
sketch1.addConstraint(Sketcher.Constraint("DistanceY", -1, 1, 49, 3, 11.31609))
sketch1.addConstraint(Sketcher.Constraint("DistanceX", -1, 1, 51, 3, 16.46153))
sketch1.addConstraint(Sketcher.Constraint("DistanceX", -1, 1, 53, 3, 6.852571))
sketch1.addConstraint(Sketcher.Constraint("DistanceY", -1, 1, 55, 3, 7.957052))
sketch1.addConstraint(Sketcher.Constraint("DistanceY", -1, 1, 64, 3, 11.31609))
sketch1.addConstraint(Sketcher.Constraint("DistanceX", 0, 2, -1, 1, 25.390672))
sketch1.addConstraint(Sketcher.Constraint("DistanceX", 1, 2, -1, 1, 25.390672))
sketch1.addConstraint(Sketcher.Constraint("DistanceX", -1, 1, 4, 2, 25.390672))
sketch1.addConstraint(Sketcher.Constraint("DistanceX", -1, 1, 6, 2, 25.390672))
sketch1.addConstraint(Sketcher.Constraint("DistanceY", 13, 1, -1, 1, 18.177541))
sketch1.addConstraint(Sketcher.Constraint("DistanceX", 15, 1, -1, 1, 16.461531))
sketch1.addConstraint(Sketcher.Constraint("DistanceX", 17, 1, -1, 1, 6.052341))
sketch1.addConstraint(Sketcher.Constraint("DistanceY", 18, 2, -1, 1, 8.917329))
sketch1.addConstraint(Sketcher.Constraint("DistanceX", 19, 1, -1, 1, 14.210711))
sketch1.addConstraint(Sketcher.Constraint("DistanceX", 21, 1, -1, 1, 18.243719))
sketch1.addConstraint(Sketcher.Constraint("DistanceY", 21, 1, -1, 1, 3.070641))
sketch1.addConstraint(Sketcher.Constraint("DistanceY", 24, 1, -1, 1, 4.454638))
sketch1.addConstraint(Sketcher.Constraint("DistanceY", 27, 2, -1, 1, 18.177541))
sketch1.addConstraint(Sketcher.Constraint("DistanceX", -1, 1, 30, 2, 14.210711))
sketch1.addConstraint(Sketcher.Constraint("DistanceY", 31, 1, -1, 1, 8.917329))
sketch1.addConstraint(Sketcher.Constraint("DistanceX", -1, 1, 32, 2, 6.052341))
sketch1.addConstraint(Sketcher.Constraint("DistanceX", -1, 1, 34, 2, 16.461531))
sketch1.addConstraint(Sketcher.Constraint("DistanceX", -1, 1, 36, 2, 18.243719))
sketch1.addConstraint(Sketcher.Constraint("DistanceY", 36, 2, -1, 1, 3.070641))
sketch1.addConstraint(Sketcher.Constraint("DistanceX", 38, 2, -1, 1, 14.210711))
sketch1.addConstraint(Sketcher.Constraint("DistanceY", -1, 1, 39, 1, 8.917329))
sketch1.addConstraint(Sketcher.Constraint("DistanceX", 40, 2, -1, 1, 6.052341))
sketch1.addConstraint(Sketcher.Constraint("DistanceX", 42, 2, -1, 1, 16.461531))
sketch1.addConstraint(Sketcher.Constraint("DistanceX", 44, 2, -1, 1, 18.243719))
sketch1.addConstraint(Sketcher.Constraint("DistanceY", -1, 1, 44, 2, 3.070641))
sketch1.addConstraint(Sketcher.Constraint("DistanceY", -1, 1, 47, 1, 4.454638))
sketch1.addConstraint(Sketcher.Constraint("DistanceY", -1, 1, 50, 2, 18.177541))
sketch1.addConstraint(Sketcher.Constraint("DistanceX", -1, 1, 51, 1, 16.461531))
sketch1.addConstraint(Sketcher.Constraint("DistanceX", -1, 1, 53, 1, 6.052341))
sketch1.addConstraint(Sketcher.Constraint("DistanceY", -1, 1, 54, 2, 8.917329))
sketch1.addConstraint(Sketcher.Constraint("DistanceX", -1, 1, 55, 1, 14.210711))
sketch1.addConstraint(Sketcher.Constraint("DistanceX", -1, 1, 57, 1, 18.243719))
sketch1.addConstraint(Sketcher.Constraint("DistanceY", -1, 1, 57, 1, 3.070641))
sketch1.addConstraint(Sketcher.Constraint("DistanceY", -1, 1, 62, 1, 18.177541))
sketch1.addConstraint(Sketcher.Constraint("Distance", 10, 9.122667))
sketch1.addConstraint(Sketcher.Constraint("Distance", 14, 9.122667))
sketch1.addConstraint(Sketcher.Constraint("Distance", 20, 4.937285))
sketch1.addConstraint(Sketcher.Constraint("Distance", 25, 9.122667))
sketch1.addConstraint(Sketcher.Constraint("Distance", 27, 9.122667))
sketch1.addConstraint(Sketcher.Constraint("Distance", 30, 4.937285))
sketch1.addConstraint(Sketcher.Constraint("Distance", 38, 4.937285))
sketch1.addConstraint(Sketcher.Constraint("Distance", 48, 9.122667))
sketch1.addConstraint(Sketcher.Constraint("Distance", 50, 9.122667))
sketch1.addConstraint(Sketcher.Constraint("Distance", 56, 4.937285))
sketch1.addConstraint(Sketcher.Constraint("Distance", 59, 9.122667))
sketch1.addConstraint(Sketcher.Constraint("Distance", 63, 9.122667))
sketch1.addConstraint(Sketcher.Constraint("DistanceY", 11, 3, -1, 1, 5.406963))
sketch1.addConstraint(Sketcher.Constraint("DistanceY", 13, 3, -1, 1, 17.225214))
sketch1.addConstraint(Sketcher.Constraint("DistanceX", 21, 3, -1, 1, 16.729156))
sketch1.addConstraint(Sketcher.Constraint("DistanceY", 24, 3, -1, 1, 5.406963))
sketch1.addConstraint(Sketcher.Constraint("DistanceY", 28, 3, -1, 1, 17.225214))
sketch1.addConstraint(Sketcher.Constraint("DistanceX", -1, 1, 29, 3, 16.729156))
sketch1.addConstraint(Sketcher.Constraint("DistanceX", 37, 3, -1, 1, 16.729156))
sketch1.addConstraint(Sketcher.Constraint("DistanceY", -1, 1, 45, 3, 17.225214))
sketch1.addConstraint(Sketcher.Constraint("DistanceY", -1, 1, 47, 3, 5.406963))
sketch1.addConstraint(Sketcher.Constraint("DistanceX", -1, 1, 57, 3, 16.729156))
sketch1.addConstraint(Sketcher.Constraint("DistanceY", -1, 1, 60, 3, 5.406963))
sketch1.addConstraint(Sketcher.Constraint("DistanceY", -1, 1, 62, 3, 17.225214))
sketch1.addConstraint(Sketcher.Constraint("DistanceX", 9, 1, -1, 1, 10.259876))
sketch1.addConstraint(Sketcher.Constraint("DistanceY", 11, 1, -1, 1, 5.406964))
sketch1.addConstraint(Sketcher.Constraint("DistanceY", 23, 2, -1, 1, 5.406964))
sketch1.addConstraint(Sketcher.Constraint("DistanceY", -1, 1, 45, 1, 17.225215))
sketch1.addConstraint(Sketcher.Constraint("DistanceX", -1, 1, 59, 2, 3.309676))
sketch1.addConstraint(Sketcher.Constraint("DistanceY", -1, 1, 60, 1, 5.406964))
pad1 = doc.addObject("PartDesign::Pad", "Pad")
body.addObject(pad1)
pad1.Profile = sketch1
pad1.Length = 2.5

doc.recompute()
